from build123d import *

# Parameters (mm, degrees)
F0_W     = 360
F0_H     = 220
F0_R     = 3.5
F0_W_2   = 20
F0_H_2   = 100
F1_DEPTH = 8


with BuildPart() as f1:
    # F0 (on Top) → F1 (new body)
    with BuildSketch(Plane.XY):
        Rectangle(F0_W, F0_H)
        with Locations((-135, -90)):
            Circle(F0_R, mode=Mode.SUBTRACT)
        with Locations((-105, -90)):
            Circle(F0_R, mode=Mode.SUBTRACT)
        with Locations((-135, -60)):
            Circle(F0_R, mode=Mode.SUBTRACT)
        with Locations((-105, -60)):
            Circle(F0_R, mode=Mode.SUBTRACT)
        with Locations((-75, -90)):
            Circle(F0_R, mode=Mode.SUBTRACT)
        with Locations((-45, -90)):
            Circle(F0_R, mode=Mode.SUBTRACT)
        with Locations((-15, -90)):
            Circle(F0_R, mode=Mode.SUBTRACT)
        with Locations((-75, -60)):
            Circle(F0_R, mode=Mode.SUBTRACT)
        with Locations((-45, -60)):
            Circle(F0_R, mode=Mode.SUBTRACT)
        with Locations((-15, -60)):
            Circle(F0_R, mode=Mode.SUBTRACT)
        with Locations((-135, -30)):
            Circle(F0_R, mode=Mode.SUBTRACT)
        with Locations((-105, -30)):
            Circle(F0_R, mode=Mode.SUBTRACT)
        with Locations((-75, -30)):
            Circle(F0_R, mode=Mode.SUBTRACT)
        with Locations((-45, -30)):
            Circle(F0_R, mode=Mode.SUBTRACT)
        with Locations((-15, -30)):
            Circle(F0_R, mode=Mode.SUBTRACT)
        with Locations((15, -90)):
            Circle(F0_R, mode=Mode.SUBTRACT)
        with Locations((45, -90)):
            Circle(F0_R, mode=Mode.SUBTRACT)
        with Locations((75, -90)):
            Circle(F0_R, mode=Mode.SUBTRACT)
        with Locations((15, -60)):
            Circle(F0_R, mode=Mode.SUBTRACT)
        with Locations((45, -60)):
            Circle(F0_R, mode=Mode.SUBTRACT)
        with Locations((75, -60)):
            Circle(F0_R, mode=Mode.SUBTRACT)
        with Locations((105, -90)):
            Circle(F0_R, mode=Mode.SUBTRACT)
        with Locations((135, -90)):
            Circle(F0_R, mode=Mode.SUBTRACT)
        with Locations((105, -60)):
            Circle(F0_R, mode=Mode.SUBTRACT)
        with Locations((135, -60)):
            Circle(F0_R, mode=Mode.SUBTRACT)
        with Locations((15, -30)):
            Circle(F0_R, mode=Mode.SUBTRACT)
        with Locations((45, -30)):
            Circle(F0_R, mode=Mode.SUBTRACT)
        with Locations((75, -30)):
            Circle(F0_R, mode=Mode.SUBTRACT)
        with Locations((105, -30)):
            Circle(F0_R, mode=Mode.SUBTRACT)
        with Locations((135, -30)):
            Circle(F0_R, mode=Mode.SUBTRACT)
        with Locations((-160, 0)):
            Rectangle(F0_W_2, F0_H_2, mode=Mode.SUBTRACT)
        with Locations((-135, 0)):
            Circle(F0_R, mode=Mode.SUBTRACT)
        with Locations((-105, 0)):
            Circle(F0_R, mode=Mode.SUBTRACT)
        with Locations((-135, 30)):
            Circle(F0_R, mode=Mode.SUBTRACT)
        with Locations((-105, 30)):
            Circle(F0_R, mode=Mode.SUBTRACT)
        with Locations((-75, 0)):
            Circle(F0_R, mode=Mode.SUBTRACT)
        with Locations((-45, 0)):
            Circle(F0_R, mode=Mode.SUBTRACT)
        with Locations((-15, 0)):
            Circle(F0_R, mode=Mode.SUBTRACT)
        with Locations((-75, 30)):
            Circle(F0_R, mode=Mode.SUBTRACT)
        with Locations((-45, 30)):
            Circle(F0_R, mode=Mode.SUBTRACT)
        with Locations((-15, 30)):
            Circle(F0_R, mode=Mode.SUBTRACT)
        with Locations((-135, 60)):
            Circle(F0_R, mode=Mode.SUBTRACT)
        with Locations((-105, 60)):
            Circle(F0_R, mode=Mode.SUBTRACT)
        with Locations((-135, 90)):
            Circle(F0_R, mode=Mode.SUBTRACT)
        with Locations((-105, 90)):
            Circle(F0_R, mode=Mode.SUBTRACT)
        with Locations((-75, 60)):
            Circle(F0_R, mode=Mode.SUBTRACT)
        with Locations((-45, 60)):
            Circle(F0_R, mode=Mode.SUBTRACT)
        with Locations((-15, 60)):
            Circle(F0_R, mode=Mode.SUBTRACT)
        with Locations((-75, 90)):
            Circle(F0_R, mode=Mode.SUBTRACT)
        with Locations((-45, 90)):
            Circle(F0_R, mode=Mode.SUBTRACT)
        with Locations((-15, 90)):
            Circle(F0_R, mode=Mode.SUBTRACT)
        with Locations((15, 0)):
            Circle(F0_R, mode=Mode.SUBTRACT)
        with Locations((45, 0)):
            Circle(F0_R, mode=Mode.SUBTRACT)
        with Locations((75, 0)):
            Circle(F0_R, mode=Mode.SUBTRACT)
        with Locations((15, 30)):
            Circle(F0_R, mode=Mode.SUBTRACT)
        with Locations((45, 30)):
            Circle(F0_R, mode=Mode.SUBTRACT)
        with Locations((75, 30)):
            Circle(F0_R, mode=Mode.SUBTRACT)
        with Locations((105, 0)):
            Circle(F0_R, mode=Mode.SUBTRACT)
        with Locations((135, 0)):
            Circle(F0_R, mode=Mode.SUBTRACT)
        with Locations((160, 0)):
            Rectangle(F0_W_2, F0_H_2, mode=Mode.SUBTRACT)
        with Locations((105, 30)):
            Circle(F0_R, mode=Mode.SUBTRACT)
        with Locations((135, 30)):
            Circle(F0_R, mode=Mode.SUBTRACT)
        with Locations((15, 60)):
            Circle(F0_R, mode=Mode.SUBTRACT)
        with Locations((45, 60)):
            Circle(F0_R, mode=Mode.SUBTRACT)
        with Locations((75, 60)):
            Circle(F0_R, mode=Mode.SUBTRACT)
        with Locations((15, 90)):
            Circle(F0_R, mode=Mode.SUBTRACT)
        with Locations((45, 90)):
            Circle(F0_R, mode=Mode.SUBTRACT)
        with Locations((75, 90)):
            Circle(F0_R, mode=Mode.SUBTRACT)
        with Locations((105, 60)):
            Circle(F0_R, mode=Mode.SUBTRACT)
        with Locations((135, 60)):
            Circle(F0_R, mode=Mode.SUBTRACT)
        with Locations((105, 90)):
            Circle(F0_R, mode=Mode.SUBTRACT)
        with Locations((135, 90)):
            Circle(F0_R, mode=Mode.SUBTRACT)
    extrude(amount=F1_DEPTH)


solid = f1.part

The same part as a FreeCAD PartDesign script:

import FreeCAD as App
import Part
import Sketcher
from FreeCAD import Vector


def add_polygon(sketch, points):
    """Adds a closed chain of lines whose ends are joined by coincident constraints."""
    first, n = sketch.GeometryCount, len(points)
    for a, b in zip(points, points[1:] + points[:1]):
        sketch.addGeometry(Part.LineSegment(App.Vector(*a, 0), App.Vector(*b, 0)), False)
    for i in range(n):
        sketch.addConstraint(Sketcher.Constraint("Coincident", first + i, 2, first + (i + 1) % n, 1))

doc = App.newDocument("Part")
params = doc.addObject("Spreadsheet::Sheet", "Params")
for row, (alias, value) in enumerate([
    ("sketch1_diameter", "7 mm"),
    ("sketch1_width", "360 mm"),
    ("sketch1_width2", "20 mm"),
    ("sketch1_height", "220 mm"),
    ("sketch1_height2", "100 mm"),
    ("pad1_length", "8 mm"),
], start=1):
    params.set(f"A{row}", alias)
    params.set(f"B{row}", "=" + value)
    params.setAlias(f"B{row}", alias)

body = doc.addObject("PartDesign::Body", "Body")

sketch1 = body.newObject("Sketcher::SketchObject", "Sketch")
sketch1.AttachmentSupport = (doc.getObject("XY_Plane"), [""])
sketch1.MapMode = "FlatFace"
add_polygon(sketch1, [(-180, 110), (-180, -110), (180, -110), (180, 110)])
sketch1.addGeometry(Part.Circle(Vector(-135, -90, 0), Vector(0, 0, 1), 3.5), False)
sketch1.addGeometry(Part.Circle(Vector(-105, -90, 0), Vector(0, 0, 1), 3.5), False)
sketch1.addGeometry(Part.Circle(Vector(-135, -60, 0), Vector(0, 0, 1), 3.5), False)
sketch1.addGeometry(Part.Circle(Vector(-105, -60, 0), Vector(0, 0, 1), 3.5), False)
sketch1.addGeometry(Part.Circle(Vector(-75, -90, 0), Vector(0, 0, 1), 3.5), False)
sketch1.addGeometry(Part.Circle(Vector(-45, -90, 0), Vector(0, 0, 1), 3.5), False)
sketch1.addGeometry(Part.Circle(Vector(-15, -90, 0), Vector(0, 0, 1), 3.5), False)
sketch1.addGeometry(Part.Circle(Vector(-75, -60, 0), Vector(0, 0, 1), 3.5), False)
sketch1.addGeometry(Part.Circle(Vector(-45, -60, 0), Vector(0, 0, 1), 3.5), False)
sketch1.addGeometry(Part.Circle(Vector(-15, -60, 0), Vector(0, 0, 1), 3.5), False)
sketch1.addGeometry(Part.Circle(Vector(-135, -30, 0), Vector(0, 0, 1), 3.5), False)
sketch1.addGeometry(Part.Circle(Vector(-105, -30, 0), Vector(0, 0, 1), 3.5), False)
add_polygon(sketch1, [(-150, -50), (-170, -50), (-170, 50), (-150, 50)])
sketch1.addGeometry(Part.Circle(Vector(-135, 0, 0), Vector(0, 0, 1), 3.5), False)
sketch1.addGeometry(Part.Circle(Vector(-105, 0, 0), Vector(0, 0, 1), 3.5), False)
sketch1.addGeometry(Part.Circle(Vector(-75, -30, 0), Vector(0, 0, 1), 3.5), False)
sketch1.addGeometry(Part.Circle(Vector(-45, -30, 0), Vector(0, 0, 1), 3.5), False)
sketch1.addGeometry(Part.Circle(Vector(-15, -30, 0), Vector(0, 0, 1), 3.5), False)
sketch1.addGeometry(Part.Circle(Vector(-75, 0, 0), Vector(0, 0, 1), 3.5), False)
sketch1.addGeometry(Part.Circle(Vector(-45, 0, 0), Vector(0, 0, 1), 3.5), False)
sketch1.addGeometry(Part.Circle(Vector(-15, 0, 0), Vector(0, 0, 1), 3.5), False)
sketch1.addGeometry(Part.Circle(Vector(15, -90, 0), Vector(0, 0, 1), 3.5), False)
sketch1.addGeometry(Part.Circle(Vector(45, -90, 0), Vector(0, 0, 1), 3.5), False)
sketch1.addGeometry(Part.Circle(Vector(75, -90, 0), Vector(0, 0, 1), 3.5), False)
sketch1.addGeometry(Part.Circle(Vector(15, -60, 0), Vector(0, 0, 1), 3.5), False)
sketch1.addGeometry(Part.Circle(Vector(45, -60, 0), Vector(0, 0, 1), 3.5), False)
sketch1.addGeometry(Part.Circle(Vector(75, -60, 0), Vector(0, 0, 1), 3.5), False)
sketch1.addGeometry(Part.Circle(Vector(105, -90, 0), Vector(0, 0, 1), 3.5), False)
sketch1.addGeometry(Part.Circle(Vector(135, -90, 0), Vector(0, 0, 1), 3.5), False)
sketch1.addGeometry(Part.Circle(Vector(105, -60, 0), Vector(0, 0, 1), 3.5), False)
sketch1.addGeometry(Part.Circle(Vector(135, -60, 0), Vector(0, 0, 1), 3.5), False)
sketch1.addGeometry(Part.Circle(Vector(15, -30, 0), Vector(0, 0, 1), 3.5), False)
sketch1.addGeometry(Part.Circle(Vector(45, -30, 0), Vector(0, 0, 1), 3.5), False)
sketch1.addGeometry(Part.Circle(Vector(75, -30, 0), Vector(0, 0, 1), 3.5), False)
sketch1.addGeometry(Part.Circle(Vector(15, 0, 0), Vector(0, 0, 1), 3.5), False)
sketch1.addGeometry(Part.Circle(Vector(45, 0, 0), Vector(0, 0, 1), 3.5), False)
sketch1.addGeometry(Part.Circle(Vector(75, 0, 0), Vector(0, 0, 1), 3.5), False)
sketch1.addGeometry(Part.Circle(Vector(105, -30, 0), Vector(0, 0, 1), 3.5), False)
sketch1.addGeometry(Part.Circle(Vector(135, -30, 0), Vector(0, 0, 1), 3.5), False)
sketch1.addGeometry(Part.Circle(Vector(105, 0, 0), Vector(0, 0, 1), 3.5), False)
sketch1.addGeometry(Part.Circle(Vector(135, 0, 0), Vector(0, 0, 1), 3.5), False)
add_polygon(sketch1, [(170, -50), (150, -50), (150, 50), (170, 50)])
sketch1.addGeometry(Part.Circle(Vector(-135, 30, 0), Vector(0, 0, 1), 3.5), False)
sketch1.addGeometry(Part.Circle(Vector(-105, 30, 0), Vector(0, 0, 1), 3.5), False)
sketch1.addGeometry(Part.Circle(Vector(-75, 30, 0), Vector(0, 0, 1), 3.5), False)
sketch1.addGeometry(Part.Circle(Vector(-45, 30, 0), Vector(0, 0, 1), 3.5), False)
sketch1.addGeometry(Part.Circle(Vector(-15, 30, 0), Vector(0, 0, 1), 3.5), False)
sketch1.addGeometry(Part.Circle(Vector(-135, 60, 0), Vector(0, 0, 1), 3.5), False)
sketch1.addGeometry(Part.Circle(Vector(-105, 60, 0), Vector(0, 0, 1), 3.5), False)
sketch1.addGeometry(Part.Circle(Vector(-135, 90, 0), Vector(0, 0, 1), 3.5), False)
sketch1.addGeometry(Part.Circle(Vector(-105, 90, 0), Vector(0, 0, 1), 3.5), False)
sketch1.addGeometry(Part.Circle(Vector(-75, 60, 0), Vector(0, 0, 1), 3.5), False)
sketch1.addGeometry(Part.Circle(Vector(-45, 60, 0), Vector(0, 0, 1), 3.5), False)
sketch1.addGeometry(Part.Circle(Vector(-15, 60, 0), Vector(0, 0, 1), 3.5), False)
sketch1.addGeometry(Part.Circle(Vector(-75, 90, 0), Vector(0, 0, 1), 3.5), False)
sketch1.addGeometry(Part.Circle(Vector(-45, 90, 0), Vector(0, 0, 1), 3.5), False)
sketch1.addGeometry(Part.Circle(Vector(-15, 90, 0), Vector(0, 0, 1), 3.5), False)
sketch1.addGeometry(Part.Circle(Vector(15, 30, 0), Vector(0, 0, 1), 3.5), False)
sketch1.addGeometry(Part.Circle(Vector(45, 30, 0), Vector(0, 0, 1), 3.5), False)
sketch1.addGeometry(Part.Circle(Vector(75, 30, 0), Vector(0, 0, 1), 3.5), False)
sketch1.addGeometry(Part.Circle(Vector(105, 30, 0), Vector(0, 0, 1), 3.5), False)
sketch1.addGeometry(Part.Circle(Vector(135, 30, 0), Vector(0, 0, 1), 3.5), False)
sketch1.addGeometry(Part.Circle(Vector(15, 60, 0), Vector(0, 0, 1), 3.5), False)
sketch1.addGeometry(Part.Circle(Vector(45, 60, 0), Vector(0, 0, 1), 3.5), False)
sketch1.addGeometry(Part.Circle(Vector(75, 60, 0), Vector(0, 0, 1), 3.5), False)
sketch1.addGeometry(Part.Circle(Vector(15, 90, 0), Vector(0, 0, 1), 3.5), False)
sketch1.addGeometry(Part.Circle(Vector(45, 90, 0), Vector(0, 0, 1), 3.5), False)
sketch1.addGeometry(Part.Circle(Vector(75, 90, 0), Vector(0, 0, 1), 3.5), False)
sketch1.addGeometry(Part.Circle(Vector(105, 60, 0), Vector(0, 0, 1), 3.5), False)
sketch1.addGeometry(Part.Circle(Vector(135, 60, 0), Vector(0, 0, 1), 3.5), False)
sketch1.addGeometry(Part.Circle(Vector(105, 90, 0), Vector(0, 0, 1), 3.5), False)
sketch1.addGeometry(Part.Circle(Vector(135, 90, 0), Vector(0, 0, 1), 3.5), False)
sketch1.addConstraint(Sketcher.Constraint("Vertical", 0))
sketch1.addConstraint(Sketcher.Constraint("Horizontal", 1))
sketch1.addConstraint(Sketcher.Constraint("Vertical", 2))
sketch1.addConstraint(Sketcher.Constraint("Horizontal", 3))
sketch1.addConstraint(Sketcher.Constraint("Horizontal", 16))
sketch1.addConstraint(Sketcher.Constraint("Vertical", 17))
sketch1.addConstraint(Sketcher.Constraint("Horizontal", 18))
sketch1.addConstraint(Sketcher.Constraint("Vertical", 19))
sketch1.addConstraint(Sketcher.Constraint("Horizontal", 48))
sketch1.addConstraint(Sketcher.Constraint("Vertical", 49))
sketch1.addConstraint(Sketcher.Constraint("Horizontal", 50))
sketch1.addConstraint(Sketcher.Constraint("Vertical", 51))
sketch1.addConstraint(Sketcher.Constraint("Equal", 4, 5))
sketch1.addConstraint(Sketcher.Constraint("Equal", 5, 6))
sketch1.addConstraint(Sketcher.Constraint("Equal", 6, 7))
sketch1.addConstraint(Sketcher.Constraint("Equal", 7, 8))
sketch1.addConstraint(Sketcher.Constraint("Equal", 8, 9))
sketch1.addConstraint(Sketcher.Constraint("Equal", 9, 10))
sketch1.addConstraint(Sketcher.Constraint("Equal", 10, 11))
sketch1.addConstraint(Sketcher.Constraint("Equal", 11, 12))
sketch1.addConstraint(Sketcher.Constraint("Equal", 12, 13))
sketch1.addConstraint(Sketcher.Constraint("Equal", 13, 14))
sketch1.addConstraint(Sketcher.Constraint("Equal", 14, 15))
sketch1.addConstraint(Sketcher.Constraint("Equal", 15, 20))
sketch1.addConstraint(Sketcher.Constraint("Equal", 20, 21))
sketch1.addConstraint(Sketcher.Constraint("Equal", 21, 22))
sketch1.addConstraint(Sketcher.Constraint("Equal", 22, 23))
sketch1.addConstraint(Sketcher.Constraint("Equal", 23, 24))
sketch1.addConstraint(Sketcher.Constraint("Equal", 24, 25))
sketch1.addConstraint(Sketcher.Constraint("Equal", 25, 26))
sketch1.addConstraint(Sketcher.Constraint("Equal", 26, 27))
sketch1.addConstraint(Sketcher.Constraint("Equal", 27, 28))
sketch1.addConstraint(Sketcher.Constraint("Equal", 28, 29))
sketch1.addConstraint(Sketcher.Constraint("Equal", 29, 30))
sketch1.addConstraint(Sketcher.Constraint("Equal", 30, 31))
sketch1.addConstraint(Sketcher.Constraint("Equal", 31, 32))
sketch1.addConstraint(Sketcher.Constraint("Equal", 32, 33))
sketch1.addConstraint(Sketcher.Constraint("Equal", 33, 34))
sketch1.addConstraint(Sketcher.Constraint("Equal", 34, 35))
sketch1.addConstraint(Sketcher.Constraint("Equal", 35, 36))
sketch1.addConstraint(Sketcher.Constraint("Equal", 36, 37))
sketch1.addConstraint(Sketcher.Constraint("Equal", 37, 38))
sketch1.addConstraint(Sketcher.Constraint("Equal", 38, 39))
sketch1.addConstraint(Sketcher.Constraint("Equal", 39, 40))
sketch1.addConstraint(Sketcher.Constraint("Equal", 40, 41))
sketch1.addConstraint(Sketcher.Constraint("Equal", 41, 42))
sketch1.addConstraint(Sketcher.Constraint("Equal", 42, 43))
sketch1.addConstraint(Sketcher.Constraint("Equal", 43, 44))
sketch1.addConstraint(Sketcher.Constraint("Equal", 44, 45))
sketch1.addConstraint(Sketcher.Constraint("Equal", 45, 46))
sketch1.addConstraint(Sketcher.Constraint("Equal", 46, 47))
sketch1.addConstraint(Sketcher.Constraint("Equal", 47, 52))
sketch1.addConstraint(Sketcher.Constraint("Equal", 52, 53))
sketch1.addConstraint(Sketcher.Constraint("Equal", 53, 54))
sketch1.addConstraint(Sketcher.Constraint("Equal", 54, 55))
sketch1.addConstraint(Sketcher.Constraint("Equal", 55, 56))
sketch1.addConstraint(Sketcher.Constraint("Equal", 56, 57))
sketch1.addConstraint(Sketcher.Constraint("Equal", 57, 58))
sketch1.addConstraint(Sketcher.Constraint("Equal", 58, 59))
sketch1.addConstraint(Sketcher.Constraint("Equal", 59, 60))
sketch1.addConstraint(Sketcher.Constraint("Equal", 60, 61))
sketch1.addConstraint(Sketcher.Constraint("Equal", 61, 62))
sketch1.addConstraint(Sketcher.Constraint("Equal", 62, 63))
sketch1.addConstraint(Sketcher.Constraint("Equal", 63, 64))
sketch1.addConstraint(Sketcher.Constraint("Equal", 64, 65))
sketch1.addConstraint(Sketcher.Constraint("Equal", 65, 66))
sketch1.addConstraint(Sketcher.Constraint("Equal", 66, 67))
sketch1.addConstraint(Sketcher.Constraint("Equal", 67, 68))
sketch1.addConstraint(Sketcher.Constraint("Equal", 68, 69))
sketch1.addConstraint(Sketcher.Constraint("Equal", 69, 70))
sketch1.addConstraint(Sketcher.Constraint("Equal", 70, 71))
sketch1.addConstraint(Sketcher.Constraint("Equal", 71, 72))
sketch1.addConstraint(Sketcher.Constraint("Equal", 72, 73))
sketch1.addConstraint(Sketcher.Constraint("Equal", 73, 74))
sketch1.addConstraint(Sketcher.Constraint("Equal", 74, 75))
sketch1.addConstraint(Sketcher.Constraint("Equal", 75, 76))
sketch1.addConstraint(Sketcher.Constraint("Equal", 76, 77))
sketch1.addConstraint(Sketcher.Constraint("Equal", 77, 78))
sketch1.addConstraint(Sketcher.Constraint("Equal", 78, 79))
sketch1.addConstraint(Sketcher.Constraint("Equal", 79, 80))
sketch1.addConstraint(Sketcher.Constraint("Equal", 80, 81))
sketch1.addConstraint(Sketcher.Constraint("Symmetric", 27, 3, 41, 3, -1, 1))
sketch1.addConstraint(Sketcher.Constraint("Symmetric", 26, 3, 42, 3, -1, 1))
sketch1.addConstraint(Sketcher.Constraint("Symmetric", 25, 3, 43, 3, -1, 1))
sketch1.addConstraint(Sketcher.Constraint("Symmetric", 21, 3, 46, 3, -1, 1))
sketch1.addConstraint(Sketcher.Constraint("Symmetric", 20, 3, 47, 3, -1, 1))
sketch1.addConstraint(Sketcher.Constraint("Symmetric", 45, 3, 52, 3, -1, 1))
sketch1.addConstraint(Sketcher.Constraint("Symmetric", 44, 3, 53, 3, -1, 1))
sketch1.addConstraint(Sketcher.Constraint("Symmetric", 40, 3, 54, 3, -1, 1))
sketch1.addConstraint(Sketcher.Constraint("Symmetric", 39, 3, 55, 3, -1, 1))
sketch1.addConstraint(Sketcher.Constraint("Symmetric", 38, 3, 56, 3, -1, 1))
sketch1.addConstraint(Sketcher.Constraint("Symmetric", 37, 3, 57, 3, -1, 1))
sketch1.addConstraint(Sketcher.Constraint("Symmetric", 36, 3, 58, 3, -1, 1))
sketch1.addConstraint(Sketcher.Constraint("Symmetric", 35, 3, 59, 3, -1, 1))
sketch1.addConstraint(Sketcher.Constraint("Symmetric", 34, 3, 60, 3, -1, 1))
sketch1.addConstraint(Sketcher.Constraint("Symmetric", 33, 3, 61, 3, -1, 1))
sketch1.addConstraint(Sketcher.Constraint("Symmetric", 32, 3, 62, 3, -1, 1))
sketch1.addConstraint(Sketcher.Constraint("Symmetric", 31, 3, 63, 3, -1, 1))
sketch1.addConstraint(Sketcher.Constraint("Symmetric", 30, 3, 64, 3, -1, 1))
sketch1.addConstraint(Sketcher.Constraint("Symmetric", 29, 3, 65, 3, -1, 1))
sketch1.addConstraint(Sketcher.Constraint("Symmetric", 28, 3, 66, 3, -1, 1))
sketch1.addConstraint(Sketcher.Constraint("Symmetric", 24, 3, 67, 3, -1, 1))
sketch1.addConstraint(Sketcher.Constraint("Symmetric", 23, 3, 68, 3, -1, 1))
sketch1.addConstraint(Sketcher.Constraint("Symmetric", 22, 3, 69, 3, -1, 1))
sketch1.addConstraint(Sketcher.Constraint("Symmetric", 15, 3, 70, 3, -1, 1))
sketch1.addConstraint(Sketcher.Constraint("Symmetric", 14, 3, 71, 3, -1, 1))
sketch1.addConstraint(Sketcher.Constraint("Symmetric", 13, 3, 72, 3, -1, 1))
sketch1.addConstraint(Sketcher.Constraint("Symmetric", 12, 3, 73, 3, -1, 1))
sketch1.addConstraint(Sketcher.Constraint("Symmetric", 11, 3, 74, 3, -1, 1))
sketch1.addConstraint(Sketcher.Constraint("Symmetric", 10, 3, 75, 3, -1, 1))
sketch1.addConstraint(Sketcher.Constraint("Symmetric", 9, 3, 76, 3, -1, 1))
sketch1.addConstraint(Sketcher.Constraint("Symmetric", 8, 3, 77, 3, -1, 1))
sketch1.addConstraint(Sketcher.Constraint("Symmetric", 7, 3, 78, 3, -1, 1))
sketch1.addConstraint(Sketcher.Constraint("Symmetric", 6, 3, 79, 3, -1, 1))
sketch1.addConstraint(Sketcher.Constraint("Symmetric", 5, 3, 80, 3, -1, 1))
sketch1.addConstraint(Sketcher.Constraint("Symmetric", 4, 3, 81, 3, -1, 1))
sketch1.addConstraint(Sketcher.Constraint("Symmetric", 0, 2, 2, 2, -1, 1))
sketch1.addConstraint(Sketcher.Constraint("Symmetric", 18, 2, 48, 2, -1, 1))
sketch1.addConstraint(Sketcher.Constraint("Symmetric", 16, 2, 50, 2, -1, 1))
sketch1.addConstraint(Sketcher.Constraint("Symmetric", 10, 3, 28, 3, -2))
sketch1.addConstraint(Sketcher.Constraint("Symmetric", 9, 3, 29, 3, -2))
sketch1.addConstraint(Sketcher.Constraint("Symmetric", 8, 3, 30, 3, -2))
sketch1.addConstraint(Sketcher.Constraint("Symmetric", 13, 3, 31, 3, -2))
sketch1.addConstraint(Sketcher.Constraint("Symmetric", 12, 3, 32, 3, -2))
sketch1.addConstraint(Sketcher.Constraint("Symmetric", 11, 3, 33, 3, -2))
sketch1.addConstraint(Sketcher.Constraint("Symmetric", 5, 3, 34, 3, -2))
sketch1.addConstraint(Sketcher.Constraint("Symmetric", 4, 3, 35, 3, -2))
sketch1.addConstraint(Sketcher.Constraint("Symmetric", 7, 3, 36, 3, -2))
sketch1.addConstraint(Sketcher.Constraint("Symmetric", 6, 3, 37, 3, -2))
sketch1.addConstraint(Sketcher.Constraint("Symmetric", 24, 3, 38, 3, -2))
sketch1.addConstraint(Sketcher.Constraint("Symmetric", 23, 3, 39, 3, -2))
sketch1.addConstraint(Sketcher.Constraint("Symmetric", 22, 3, 40, 3, -2))
sketch1.addConstraint(Sketcher.Constraint("Symmetric", 15, 3, 44, 3, -2))
sketch1.addConstraint(Sketcher.Constraint("Symmetric", 14, 3, 45, 3, -2))
sketch1.addConstraint(Sketcher.Constraint("PointOnObject", 20, 3, -1))
sketch1.addConstraint(Sketcher.Constraint("PointOnObject", 21, 3, -1))
sketch1.addConstraint(Sketcher.Constraint("PointOnObject", 25, 3, -1))
sketch1.addConstraint(Sketcher.Constraint("PointOnObject", 26, 3, -1))
sketch1.addConstraint(Sketcher.Constraint("PointOnObject", 27, 3, -1))
sketch1.addConstraint(Sketcher.Constraint("Horizontal", 4, 3, 5, 3))
sketch1.addConstraint(Sketcher.Constraint("Horizontal", 6, 3, 7, 3))
sketch1.addConstraint(Sketcher.Constraint("Horizontal", 5, 3, 8, 3))
sketch1.addConstraint(Sketcher.Constraint("Horizontal", 8, 3, 9, 3))
sketch1.addConstraint(Sketcher.Constraint("Horizontal", 9, 3, 10, 3))
sketch1.addConstraint(Sketcher.Constraint("Horizontal", 7, 3, 11, 3))
sketch1.addConstraint(Sketcher.Constraint("Horizontal", 11, 3, 12, 3))
sketch1.addConstraint(Sketcher.Constraint("Horizontal", 12, 3, 13, 3))
sketch1.addConstraint(Sketcher.Constraint("Horizontal", 14, 3, 15, 3))
sketch1.addConstraint(Sketcher.Constraint("Horizontal", 15, 3, 22, 3))
sketch1.addConstraint(Sketcher.Constraint("Horizontal", 22, 3, 23, 3))
sketch1.addConstraint(Sketcher.Constraint("Horizontal", 23, 3, 24, 3))
sketch1.addConstraint(Sketcher.Constraint("Horizontal", 19, 2, 48, 2))
sketch1.addConstraint(Sketcher.Constraint("Vertical", 4, 3, 6, 3))
sketch1.addConstraint(Sketcher.Constraint("Vertical", 5, 3, 7, 3))
sketch1.addConstraint(Sketcher.Constraint("Vertical", 8, 3, 11, 3))
sketch1.addConstraint(Sketcher.Constraint("Vertical", 9, 3, 12, 3))
sketch1.addConstraint(Sketcher.Constraint("Vertical", 10, 3, 13, 3))
sketch1.addConstraint(Sketcher.Constraint("Vertical", 6, 3, 14, 3))
sketch1.addConstraint(Sketcher.Constraint("Vertical", 7, 3, 15, 3))
sketch1.addConstraint(Sketcher.Constraint("Vertical", 14, 3, 20, 3))
sketch1.addConstraint(Sketcher.Constraint("Vertical", 15, 3, 21, 3))
sketch1.addConstraint(Sketcher.Constraint("Vertical", 11, 3, 22, 3))
sketch1.addConstraint(Sketcher.Constraint("Vertical", 12, 3, 23, 3))
sketch1.addConstraint(Sketcher.Constraint("Vertical", 13, 3, 24, 3))
sketch1.addConstraint(Sketcher.Constraint("Vertical", 22, 3, 25, 3))
sketch1.addConstraint(Sketcher.Constraint("Vertical", 23, 3, 26, 3))
sketch1.addConstraint(Sketcher.Constraint("Vertical", 24, 3, 27, 3))
sketch1.addConstraint(Sketcher.Constraint("Diameter", 4, 7.0))
sketch1.addConstraint(Sketcher.Constraint("DistanceX", 1, 1, 1, 2, 360.0))
sketch1.addConstraint(Sketcher.Constraint("DistanceX", 16, 2, 16, 1, 20.0))
sketch1.addConstraint(Sketcher.Constraint("DistanceY", 0, 2, 0, 1, 220.0))
sketch1.addConstraint(Sketcher.Constraint("DistanceY", 17, 1, 17, 2, 100.0))
sketch1.addConstraint(Sketcher.Constraint("DistanceX", 4, 3, -1, 1, 135.0))
sketch1.addConstraint(Sketcher.Constraint("DistanceY", 4, 3, -1, 1, 90.0))
sketch1.addConstraint(Sketcher.Constraint("DistanceX", 5, 3, -1, 1, 105.0))
sketch1.addConstraint(Sketcher.Constraint("DistanceY", 6, 3, -1, 1, 60.0))
sketch1.addConstraint(Sketcher.Constraint("DistanceX", 8, 3, -1, 1, 75.0))
sketch1.addConstraint(Sketcher.Constraint("DistanceX", 9, 3, -1, 1, 45.0))
sketch1.addConstraint(Sketcher.Constraint("DistanceX", 10, 3, -1, 1, 15.0))
sketch1.addConstraint(Sketcher.Constraint("DistanceY", 14, 3, -1, 1, 30.0))
sketch1.addConstraint(Sketcher.Constraint("DistanceX", 16, 2, -1, 1, 170.0))
sketch1.setExpression("Constraints[179]", "Params.sketch1_diameter")
sketch1.setExpression("Constraints[180]", "Params.sketch1_width")
sketch1.setExpression("Constraints[181]", "Params.sketch1_width2")
sketch1.setExpression("Constraints[182]", "Params.sketch1_height")
sketch1.setExpression("Constraints[183]", "Params.sketch1_height2")
pad1 = body.newObject("PartDesign::Pad", "Pad")
pad1.Profile = sketch1
pad1.setExpression("Length", "Params.pad1_length")

doc.recompute()
